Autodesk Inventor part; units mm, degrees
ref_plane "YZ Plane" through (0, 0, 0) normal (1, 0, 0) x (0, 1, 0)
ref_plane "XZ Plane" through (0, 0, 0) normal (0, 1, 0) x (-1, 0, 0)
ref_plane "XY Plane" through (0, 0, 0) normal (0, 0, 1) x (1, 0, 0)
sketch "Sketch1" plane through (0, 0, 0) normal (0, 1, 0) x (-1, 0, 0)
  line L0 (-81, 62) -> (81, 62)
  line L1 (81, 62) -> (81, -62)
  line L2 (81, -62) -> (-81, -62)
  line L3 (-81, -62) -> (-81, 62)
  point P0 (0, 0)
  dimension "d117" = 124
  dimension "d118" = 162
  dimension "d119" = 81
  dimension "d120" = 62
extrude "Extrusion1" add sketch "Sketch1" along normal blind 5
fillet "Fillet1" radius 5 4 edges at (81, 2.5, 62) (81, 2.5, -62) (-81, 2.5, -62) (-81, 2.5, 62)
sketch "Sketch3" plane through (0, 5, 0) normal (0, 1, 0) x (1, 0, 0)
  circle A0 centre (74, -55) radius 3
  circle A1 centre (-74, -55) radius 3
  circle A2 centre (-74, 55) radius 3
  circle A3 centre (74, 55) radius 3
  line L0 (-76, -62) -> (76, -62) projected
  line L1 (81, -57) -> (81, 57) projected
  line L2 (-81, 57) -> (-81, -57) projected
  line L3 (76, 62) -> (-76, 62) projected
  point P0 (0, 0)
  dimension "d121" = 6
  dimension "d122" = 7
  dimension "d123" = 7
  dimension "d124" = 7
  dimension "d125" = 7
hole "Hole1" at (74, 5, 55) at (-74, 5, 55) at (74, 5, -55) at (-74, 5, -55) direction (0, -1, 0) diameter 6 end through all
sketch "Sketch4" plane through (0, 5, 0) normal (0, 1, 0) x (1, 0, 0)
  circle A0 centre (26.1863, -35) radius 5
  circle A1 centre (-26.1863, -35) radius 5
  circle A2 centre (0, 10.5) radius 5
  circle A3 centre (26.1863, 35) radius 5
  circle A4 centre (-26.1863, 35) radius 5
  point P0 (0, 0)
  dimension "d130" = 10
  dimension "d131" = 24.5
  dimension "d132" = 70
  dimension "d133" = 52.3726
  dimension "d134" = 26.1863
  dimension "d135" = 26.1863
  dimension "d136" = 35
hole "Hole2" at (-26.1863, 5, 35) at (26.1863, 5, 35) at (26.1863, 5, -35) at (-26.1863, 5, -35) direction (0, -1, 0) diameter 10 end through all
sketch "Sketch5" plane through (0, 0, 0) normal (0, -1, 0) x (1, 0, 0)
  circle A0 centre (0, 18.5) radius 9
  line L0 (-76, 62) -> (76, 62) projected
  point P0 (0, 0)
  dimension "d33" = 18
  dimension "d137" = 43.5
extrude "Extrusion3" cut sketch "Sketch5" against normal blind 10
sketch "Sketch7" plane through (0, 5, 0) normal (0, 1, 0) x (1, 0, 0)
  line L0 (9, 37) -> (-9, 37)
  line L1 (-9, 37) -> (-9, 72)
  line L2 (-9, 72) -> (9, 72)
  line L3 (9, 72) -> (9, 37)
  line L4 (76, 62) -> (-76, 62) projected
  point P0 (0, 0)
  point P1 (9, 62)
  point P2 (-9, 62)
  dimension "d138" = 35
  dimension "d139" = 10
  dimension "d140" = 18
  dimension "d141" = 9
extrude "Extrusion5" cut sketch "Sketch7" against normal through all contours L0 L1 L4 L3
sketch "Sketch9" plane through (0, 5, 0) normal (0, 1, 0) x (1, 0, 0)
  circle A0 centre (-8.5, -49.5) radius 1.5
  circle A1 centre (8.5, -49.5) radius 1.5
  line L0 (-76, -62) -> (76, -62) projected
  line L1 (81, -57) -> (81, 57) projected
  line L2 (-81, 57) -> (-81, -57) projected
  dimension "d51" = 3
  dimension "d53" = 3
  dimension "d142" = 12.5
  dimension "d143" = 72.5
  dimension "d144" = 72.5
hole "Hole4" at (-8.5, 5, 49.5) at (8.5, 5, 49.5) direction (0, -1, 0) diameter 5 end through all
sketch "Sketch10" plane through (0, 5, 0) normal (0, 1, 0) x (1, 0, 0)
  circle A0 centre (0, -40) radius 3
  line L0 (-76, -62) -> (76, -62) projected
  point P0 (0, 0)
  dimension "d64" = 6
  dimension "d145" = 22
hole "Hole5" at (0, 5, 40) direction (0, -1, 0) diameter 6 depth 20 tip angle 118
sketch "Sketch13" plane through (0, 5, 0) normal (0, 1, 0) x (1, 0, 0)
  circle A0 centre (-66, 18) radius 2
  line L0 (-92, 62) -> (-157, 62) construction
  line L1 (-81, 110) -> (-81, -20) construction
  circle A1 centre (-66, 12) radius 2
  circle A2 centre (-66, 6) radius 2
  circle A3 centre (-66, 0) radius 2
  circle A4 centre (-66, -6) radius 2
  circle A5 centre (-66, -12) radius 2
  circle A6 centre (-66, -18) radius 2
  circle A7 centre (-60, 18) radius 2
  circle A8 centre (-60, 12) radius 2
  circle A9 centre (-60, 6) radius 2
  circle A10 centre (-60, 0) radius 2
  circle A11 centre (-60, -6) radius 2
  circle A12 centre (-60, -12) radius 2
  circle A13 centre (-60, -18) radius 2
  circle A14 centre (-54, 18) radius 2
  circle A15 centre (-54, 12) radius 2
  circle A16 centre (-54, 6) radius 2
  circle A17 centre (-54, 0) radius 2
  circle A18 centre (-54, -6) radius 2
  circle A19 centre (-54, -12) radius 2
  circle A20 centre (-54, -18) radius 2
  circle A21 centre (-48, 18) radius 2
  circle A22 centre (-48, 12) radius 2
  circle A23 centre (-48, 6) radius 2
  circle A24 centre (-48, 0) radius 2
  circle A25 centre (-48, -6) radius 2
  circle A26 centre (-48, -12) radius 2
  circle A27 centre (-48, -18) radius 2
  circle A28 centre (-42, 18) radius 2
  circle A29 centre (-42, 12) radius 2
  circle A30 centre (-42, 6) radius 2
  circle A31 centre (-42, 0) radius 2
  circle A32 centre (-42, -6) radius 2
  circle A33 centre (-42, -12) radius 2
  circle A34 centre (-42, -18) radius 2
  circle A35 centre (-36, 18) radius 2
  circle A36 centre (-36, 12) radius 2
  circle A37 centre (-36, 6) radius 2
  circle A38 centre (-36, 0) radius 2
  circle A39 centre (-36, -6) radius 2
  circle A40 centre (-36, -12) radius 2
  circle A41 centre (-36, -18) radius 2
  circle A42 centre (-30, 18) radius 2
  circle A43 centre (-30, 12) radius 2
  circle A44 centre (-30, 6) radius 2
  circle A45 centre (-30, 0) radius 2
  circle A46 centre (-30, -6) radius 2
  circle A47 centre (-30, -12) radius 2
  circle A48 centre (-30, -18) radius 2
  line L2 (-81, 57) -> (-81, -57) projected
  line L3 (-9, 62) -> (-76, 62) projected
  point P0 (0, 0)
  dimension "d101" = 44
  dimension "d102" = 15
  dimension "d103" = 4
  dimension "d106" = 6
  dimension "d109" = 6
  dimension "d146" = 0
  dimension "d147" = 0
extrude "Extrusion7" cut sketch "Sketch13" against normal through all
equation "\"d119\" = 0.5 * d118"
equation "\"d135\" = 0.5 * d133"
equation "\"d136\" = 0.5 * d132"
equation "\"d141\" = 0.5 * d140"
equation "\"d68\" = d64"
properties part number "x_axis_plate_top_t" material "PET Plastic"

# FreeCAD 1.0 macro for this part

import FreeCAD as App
import Part
import Sketcher
from FreeCAD import Vector


def edges_at(feature, points):
    """Names of the edges that pass closest to the given points."""
    edges = feature.Shape.Edges
    near = lambda p: min(range(len(edges)), key=lambda i: edges[i].distToShape(Part.Vertex(*p))[0])
    return sorted({f"Edge{near(p) + 1}" for p in points})


def add_polygon(sketch, points):
    """Adds a closed chain of lines whose ends are joined by coincident constraints."""
    first, n = sketch.GeometryCount, len(points)
    for a, b in zip(points, points[1:] + points[:1]):
        sketch.addGeometry(Part.LineSegment(App.Vector(*a, 0), App.Vector(*b, 0)), False)
    for i in range(n):
        sketch.addConstraint(Sketcher.Constraint("Coincident", first + i, 2, first + (i + 1) % n, 1))

doc = App.newDocument("Part")
body = doc.addObject("PartDesign::Body", "Body")

sketch1 = body.newObject("Sketcher::SketchObject", "Sketch")
sketch1.AttachmentSupport = (doc.getObject("XZ_Plane"), [""])
sketch1.MapMode = "FlatFace"
add_polygon(sketch1, [(-81, 62), (81, 62), (81, -62), (-81, -62)])
sketch1.addConstraint(Sketcher.Constraint("Horizontal", 0))
sketch1.addConstraint(Sketcher.Constraint("Vertical", 1))
sketch1.addConstraint(Sketcher.Constraint("Horizontal", 2))
sketch1.addConstraint(Sketcher.Constraint("Vertical", 3))
sketch1.addConstraint(Sketcher.Constraint("Symmetric", 0, 2, 2, 2, -1, 1))
sketch1.addConstraint(Sketcher.Constraint("DistanceX", 0, 1, 0, 2, 162.0))
sketch1.addConstraint(Sketcher.Constraint("DistanceY", 1, 2, 1, 1, 124.0))
pad1 = body.newObject("PartDesign::Pad", "Pad")
pad1.Profile = sketch1
pad1.Length = 5
pad1.Reversed = True
doc.recompute()

fillet = body.newObject("PartDesign::Fillet", "Fillet")
fillet.Base = (pad1, edges_at(pad1, [
    (81, 2.5, 62),
    (81, 2.5, -62),
    (-81, 2.5, -62),
    (-81, 2.5, 62),
]))
fillet.Radius = 5

sketch2 = body.newObject("Sketcher::SketchObject", "Sketch001")
sketch2.AttachmentSupport = (doc.getObject("XZ_Plane"), [""])
sketch2.MapMode = "FlatFace"
sketch2.AttachmentOffset = App.Placement(Vector(0, 0, -5), App.Rotation())
sketch2.addGeometry(Part.Circle(Vector(74, 55, 0), Vector(0, 0, 1), 3), False)
sketch2.addGeometry(Part.Circle(Vector(-74, 55, 0), Vector(0, 0, 1), 3), False)
sketch2.addGeometry(Part.Circle(Vector(74, -55, 0), Vector(0, 0, 1), 3), False)
sketch2.addGeometry(Part.Circle(Vector(-74, -55, 0), Vector(0, 0, 1), 3), False)
sketch2.addConstraint(Sketcher.Constraint("Equal", 0, 1))
sketch2.addConstraint(Sketcher.Constraint("Equal", 1, 2))
sketch2.addConstraint(Sketcher.Constraint("Equal", 2, 3))
sketch2.addConstraint(Sketcher.Constraint("Symmetric", 1, 3, 2, 3, -1, 1))
sketch2.addConstraint(Sketcher.Constraint("Symmetric", 0, 3, 3, 3, -1, 1))
sketch2.addConstraint(Sketcher.Constraint("Symmetric", 0, 3, 1, 3, -2))
sketch2.addConstraint(Sketcher.Constraint("Diameter", 0, 6.0))
sketch2.addConstraint(Sketcher.Constraint("DistanceX", -1, 1, 0, 3, 74.0))
sketch2.addConstraint(Sketcher.Constraint("DistanceY", -1, 1, 0, 3, 55.0))
doc.recompute()
hole = body.newObject("PartDesign::Hole", "Hole")
hole.Profile = sketch2
hole.ThreadType = "None"
hole.Diameter = 6
hole.DepthType = "ThroughAll"
hole.Reversed = True

sketch3 = body.newObject("Sketcher::SketchObject", "Sketch002")
sketch3.AttachmentSupport = (doc.getObject("XZ_Plane"), [""])
sketch3.MapMode = "FlatFace"
sketch3.AttachmentOffset = App.Placement(Vector(0, 0, -5), App.Rotation())
sketch3.addGeometry(Part.Circle(Vector(-26, 35, 0), Vector(0, 0, 1), 5), False)
sketch3.addGeometry(Part.Circle(Vector(26, 35, 0), Vector(0, 0, 1), 5), False)
sketch3.addGeometry(Part.Circle(Vector(26, -35, 0), Vector(0, 0, 1), 5), False)
sketch3.addGeometry(Part.Circle(Vector(-26, -35, 0), Vector(0, 0, 1), 5), False)
sketch3.addConstraint(Sketcher.Constraint("Equal", 0, 1))
sketch3.addConstraint(Sketcher.Constraint("Equal", 1, 2))
sketch3.addConstraint(Sketcher.Constraint("Equal", 2, 3))
sketch3.addConstraint(Sketcher.Constraint("Symmetric", 0, 3, 2, 3, -1, 1))
sketch3.addConstraint(Sketcher.Constraint("Symmetric", 1, 3, 3, 3, -1, 1))
sketch3.addConstraint(Sketcher.Constraint("Symmetric", 0, 3, 1, 3, -2))
sketch3.addConstraint(Sketcher.Constraint("Diameter", 0, 10.0))
sketch3.addConstraint(Sketcher.Constraint("DistanceY", -1, 1, 0, 3, 35.0))
sketch3.addConstraint(Sketcher.Constraint("DistanceX", 0, 3, -1, 1, 26.1863))
doc.recompute()
hole2 = body.newObject("PartDesign::Hole", "Hole001")
hole2.Profile = sketch3
hole2.ThreadType = "None"
hole2.Diameter = 10
hole2.DepthType = "ThroughAll"
hole2.Reversed = True

sketch4 = body.newObject("Sketcher::SketchObject", "Sketch003")
sketch4.AttachmentSupport = (doc.getObject("XZ_Plane"), [""])
sketch4.MapMode = "FlatFace"
sketch4.addGeometry(Part.Circle(Vector(0, 18, 0), Vector(0, 0, 1), 9), False)
sketch4.addConstraint(Sketcher.Constraint("PointOnObject", 0, 3, -2))
sketch4.addConstraint(Sketcher.Constraint("Diameter", 0, 18.0))
sketch4.addConstraint(Sketcher.Constraint("DistanceY", -1, 1, 0, 3, 18.5))
pocket1 = body.newObject("PartDesign::Pocket", "Pocket")
pocket1.Profile = sketch4
pocket1.Length = 10

sketch5 = body.newObject("Sketcher::SketchObject", "Sketch004")
sketch5.AttachmentSupport = (doc.getObject("XZ_Plane"), [""])
sketch5.MapMode = "FlatFace"
sketch5.AttachmentOffset = App.Placement(Vector(0, 0, -5), App.Rotation())
add_polygon(sketch5, [(-9, -37), (9, -37), (9, -62), (-9, -62)])
sketch5.addConstraint(Sketcher.Constraint("Horizontal", 0))
sketch5.addConstraint(Sketcher.Constraint("Vertical", 1))
sketch5.addConstraint(Sketcher.Constraint("Horizontal", 2))
sketch5.addConstraint(Sketcher.Constraint("Vertical", 3))
sketch5.addConstraint(Sketcher.Constraint("DistanceX", 0, 1, 0, 2, 18.0))
sketch5.addConstraint(Sketcher.Constraint("DistanceX", -1, 1, 0, 2, 9.0))
sketch5.addConstraint(Sketcher.Constraint("DistanceY", 1, 2, 1, 1, 25.0))
sketch5.addConstraint(Sketcher.Constraint("DistanceY", 0, 2, -1, 1, 37.0))
pocket2 = body.newObject("PartDesign::Pocket", "Pocket001")
pocket2.Profile = sketch5
pocket2.Type = "ThroughAll"
pocket2.Reversed = True

sketch6 = body.newObject("Sketcher::SketchObject", "Sketch005")
sketch6.AttachmentSupport = (doc.getObject("XZ_Plane"), [""])
sketch6.MapMode = "FlatFace"
sketch6.AttachmentOffset = App.Placement(Vector(0, 0, -5), App.Rotation())
sketch6.addGeometry(Part.Circle(Vector(-8.5, 49.5, 0), Vector(0, 0, 1), 2.5), False)
sketch6.addGeometry(Part.Circle(Vector(8.5, 49.5, 0), Vector(0, 0, 1), 2.5), False)
sketch6.addConstraint(Sketcher.Constraint("Equal", 0, 1))
sketch6.addConstraint(Sketcher.Constraint("Symmetric", 0, 3, 1, 3, -2))
sketch6.addConstraint(Sketcher.Constraint("Diameter", 0, 5.0))
sketch6.addConstraint(Sketcher.Constraint("DistanceX", 0, 3, 1, 3, 17.0))
sketch6.addConstraint(Sketcher.Constraint("DistanceY", -1, 1, 0, 3, 49.5))
doc.recompute()
hole3 = body.newObject("PartDesign::Hole", "Hole002")
hole3.Profile = sketch6
hole3.ThreadType = "None"
hole3.Diameter = 5
hole3.DepthType = "ThroughAll"
hole3.Reversed = True

sketch7 = body.newObject("Sketcher::SketchObject", "Sketch006")
sketch7.AttachmentSupport = (doc.getObject("XZ_Plane"), [""])
sketch7.MapMode = "FlatFace"
sketch7.AttachmentOffset = App.Placement(Vector(0, 0, -5), App.Rotation())
sketch7.addGeometry(Part.Circle(Vector(0, 40, 0), Vector(0, 0, 1), 3), False)
sketch7.addConstraint(Sketcher.Constraint("PointOnObject", 0, 3, -2))
sketch7.addConstraint(Sketcher.Constraint("Diameter", 0, 6.0))
sketch7.addConstraint(Sketcher.Constraint("DistanceY", -1, 1, 0, 3, 40.0))
doc.recompute()
hole4 = body.newObject("PartDesign::Hole", "Hole003")
hole4.Profile = sketch7
hole4.ThreadType = "None"
hole4.Diameter = 6
hole4.DepthType = "Dimension"
hole4.Depth = 20
hole4.DrillPoint = "Angled"
hole4.DrillPointAngle = 118
hole4.Reversed = True

sketch8 = body.newObject("Sketcher::SketchObject", "Sketch007")
sketch8.AttachmentSupport = (doc.getObject("XZ_Plane"), [""])
sketch8.MapMode = "FlatFace"
sketch8.AttachmentOffset = App.Placement(Vector(0, 0, -5), App.Rotation())
sketch8.addGeometry(Part.Circle(Vector(-66, -18, 0), Vector(0, 0, 1), 2), False)
sketch8.addGeometry(Part.Circle(Vector(-66, -12, 0), Vector(0, 0, 1), 2), False)
sketch8.addGeometry(Part.Circle(Vector(-66, -6, 0), Vector(0, 0, 1), 2), False)
sketch8.addGeometry(Part.Circle(Vector(-66, 0, 0), Vector(0, 0, 1), 2), False)
sketch8.addGeometry(Part.Circle(Vector(-66, 6, 0), Vector(0, 0, 1), 2), False)
sketch8.addGeometry(Part.Circle(Vector(-66, 12, 0), Vector(0, 0, 1), 2), False)
sketch8.addGeometry(Part.Circle(Vector(-66, 18, 0), Vector(0, 0, 1), 2), False)
sketch8.addGeometry(Part.Circle(Vector(-60, -18, 0), Vector(0, 0, 1), 2), False)
sketch8.addGeometry(Part.Circle(Vector(-60, -12, 0), Vector(0, 0, 1), 2), False)
sketch8.addGeometry(Part.Circle(Vector(-60, -6, 0), Vector(0, 0, 1), 2), False)
sketch8.addGeometry(Part.Circle(Vector(-60, 0, 0), Vector(0, 0, 1), 2), False)
sketch8.addGeometry(Part.Circle(Vector(-60, 6, 0), Vector(0, 0, 1), 2), False)
sketch8.addGeometry(Part.Circle(Vector(-60, 12, 0), Vector(0, 0, 1), 2), False)
sketch8.addGeometry(Part.Circle(Vector(-60, 18, 0), Vector(0, 0, 1), 2), False)
sketch8.addGeometry(Part.Circle(Vector(-54, -18, 0), Vector(0, 0, 1), 2), False)
sketch8.addGeometry(Part.Circle(Vector(-54, -12, 0), Vector(0, 0, 1), 2), False)
sketch8.addGeometry(Part.Circle(Vector(-54, -6, 0), Vector(0, 0, 1), 2), False)
sketch8.addGeometry(Part.Circle(Vector(-54, 0, 0), Vector(0, 0, 1), 2), False)
sketch8.addGeometry(Part.Circle(Vector(-54, 6, 0), Vector(0, 0, 1), 2), False)
sketch8.addGeometry(Part.Circle(Vector(-54, 12, 0), Vector(0, 0, 1), 2), False)
sketch8.addGeometry(Part.Circle(Vector(-54, 18, 0), Vector(0, 0, 1), 2), False)
sketch8.addGeometry(Part.Circle(Vector(-48, -18, 0), Vector(0, 0, 1), 2), False)
sketch8.addGeometry(Part.Circle(Vector(-48, -12, 0), Vector(0, 0, 1), 2), False)
sketch8.addGeometry(Part.Circle(Vector(-48, -6, 0), Vector(0, 0, 1), 2), False)
sketch8.addGeometry(Part.Circle(Vector(-48, 0, 0), Vector(0, 0, 1), 2), False)
sketch8.addGeometry(Part.Circle(Vector(-48, 6, 0), Vector(0, 0, 1), 2), False)
sketch8.addGeometry(Part.Circle(Vector(-48, 12, 0), Vector(0, 0, 1), 2), False)
sketch8.addGeometry(Part.Circle(Vector(-48, 18, 0), Vector(0, 0, 1), 2), False)
sketch8.addGeometry(Part.Circle(Vector(-42, -18, 0), Vector(0, 0, 1), 2), False)
sketch8.addGeometry(Part.Circle(Vector(-42, -12, 0), Vector(0, 0, 1), 2), False)
sketch8.addGeometry(Part.Circle(Vector(-42, -6, 0), Vector(0, 0, 1), 2), False)
sketch8.addGeometry(Part.Circle(Vector(-42, 0, 0), Vector(0, 0, 1), 2), False)
sketch8.addGeometry(Part.Circle(Vector(-42, 6, 0), Vector(0, 0, 1), 2), False)
sketch8.addGeometry(Part.Circle(Vector(-42, 12, 0), Vector(0, 0, 1), 2), False)
sketch8.addGeometry(Part.Circle(Vector(-42, 18, 0), Vector(0, 0, 1), 2), False)
sketch8.addGeometry(Part.Circle(Vector(-36, -18, 0), Vector(0, 0, 1), 2), False)
sketch8.addGeometry(Part.Circle(Vector(-36, -12, 0), Vector(0, 0, 1), 2), False)
sketch8.addGeometry(Part.Circle(Vector(-36, -6, 0), Vector(0, 0, 1), 2), False)
sketch8.addGeometry(Part.Circle(Vector(-36, 0, 0), Vector(0, 0, 1), 2), False)
sketch8.addGeometry(Part.Circle(Vector(-36, 6, 0), Vector(0, 0, 1), 2), False)
sketch8.addGeometry(Part.Circle(Vector(-36, 12, 0), Vector(0, 0, 1), 2), False)
sketch8.addGeometry(Part.Circle(Vector(-36, 18, 0), Vector(0, 0, 1), 2), False)
sketch8.addGeometry(Part.Circle(Vector(-30, -18, 0), Vector(0, 0, 1), 2), False)
sketch8.addGeometry(Part.Circle(Vector(-30, -12, 0), Vector(0, 0, 1), 2), False)
sketch8.addGeometry(Part.Circle(Vector(-30, -6, 0), Vector(0, 0, 1), 2), False)
sketch8.addGeometry(Part.Circle(Vector(-30, 0, 0), Vector(0, 0, 1), 2), False)
sketch8.addGeometry(Part.Circle(Vector(-30, 6, 0), Vector(0, 0, 1), 2), False)
sketch8.addGeometry(Part.Circle(Vector(-30, 12, 0), Vector(0, 0, 1), 2), False)
sketch8.addGeometry(Part.Circle(Vector(-30, 18, 0), Vector(0, 0, 1), 2), False)
sketch8.addConstraint(Sketcher.Constraint("Equal", 0, 1))
sketch8.addConstraint(Sketcher.Constraint("Equal", 1, 2))
sketch8.addConstraint(Sketcher.Constraint("Equal", 2, 3))
sketch8.addConstraint(Sketcher.Constraint("Equal", 3, 4))
sketch8.addConstraint(Sketcher.Constraint("Equal", 4, 5))
sketch8.addConstraint(Sketcher.Constraint("Equal", 5, 6))
sketch8.addConstraint(Sketcher.Constraint("Equal", 6, 7))
sketch8.addConstraint(Sketcher.Constraint("Equal", 7, 8))
sketch8.addConstraint(Sketcher.Constraint("Equal", 8, 9))
sketch8.addConstraint(Sketcher.Constraint("Equal", 9, 10))
sketch8.addConstraint(Sketcher.Constraint("Equal", 10, 11))
sketch8.addConstraint(Sketcher.Constraint("Equal", 11, 12))
sketch8.addConstraint(Sketcher.Constraint("Equal", 12, 13))
sketch8.addConstraint(Sketcher.Constraint("Equal", 13, 14))
sketch8.addConstraint(Sketcher.Constraint("Equal", 14, 15))
sketch8.addConstraint(Sketcher.Constraint("Equal", 15, 16))
sketch8.addConstraint(Sketcher.Constraint("Equal", 16, 17))
sketch8.addConstraint(Sketcher.Constraint("Equal", 17, 18))
sketch8.addConstraint(Sketcher.Constraint("Equal", 18, 19))
sketch8.addConstraint(Sketcher.Constraint("Equal", 19, 20))
sketch8.addConstraint(Sketcher.Constraint("Equal", 20, 21))
sketch8.addConstraint(Sketcher.Constraint("Equal", 21, 22))
sketch8.addConstraint(Sketcher.Constraint("Equal", 22, 23))
sketch8.addConstraint(Sketcher.Constraint("Equal", 23, 24))
sketch8.addConstraint(Sketcher.Constraint("Equal", 24, 25))
sketch8.addConstraint(Sketcher.Constraint("Equal", 25, 26))
sketch8.addConstraint(Sketcher.Constraint("Equal", 26, 27))
sketch8.addConstraint(Sketcher.Constraint("Equal", 27, 28))
sketch8.addConstraint(Sketcher.Constraint("Equal", 28, 29))
sketch8.addConstraint(Sketcher.Constraint("Equal", 29, 30))
sketch8.addConstraint(Sketcher.Constraint("Equal", 30, 31))
sketch8.addConstraint(Sketcher.Constraint("Equal", 31, 32))
sketch8.addConstraint(Sketcher.Constraint("Equal", 32, 33))
sketch8.addConstraint(Sketcher.Constraint("Equal", 33, 34))
sketch8.addConstraint(Sketcher.Constraint("Equal", 34, 35))
sketch8.addConstraint(Sketcher.Constraint("Equal", 35, 36))
sketch8.addConstraint(Sketcher.Constraint("Equal", 36, 37))
sketch8.addConstraint(Sketcher.Constraint("Equal", 37, 38))
sketch8.addConstraint(Sketcher.Constraint("Equal", 38, 39))
sketch8.addConstraint(Sketcher.Constraint("Equal", 39, 40))
sketch8.addConstraint(Sketcher.Constraint("Equal", 40, 41))
sketch8.addConstraint(Sketcher.Constraint("Equal", 41, 42))
sketch8.addConstraint(Sketcher.Constraint("Equal", 42, 43))
sketch8.addConstraint(Sketcher.Constraint("Equal", 43, 44))
sketch8.addConstraint(Sketcher.Constraint("Equal", 44, 45))
sketch8.addConstraint(Sketcher.Constraint("Equal", 45, 46))
sketch8.addConstraint(Sketcher.Constraint("Equal", 46, 47))
sketch8.addConstraint(Sketcher.Constraint("Equal", 47, 48))
sketch8.addConstraint(Sketcher.Constraint("Symmetric", 2, 3, 4, 3, -1))
sketch8.addConstraint(Sketcher.Constraint("Symmetric", 1, 3, 5, 3, -1))
sketch8.addConstraint(Sketcher.Constraint("Symmetric", 0, 3, 6, 3, -1))
sketch8.addConstraint(Sketcher.Constraint("Symmetric", 9, 3, 11, 3, -1))
sketch8.addConstraint(Sketcher.Constraint("Symmetric", 8, 3, 12, 3, -1))
sketch8.addConstraint(Sketcher.Constraint("Symmetric", 7, 3, 13, 3, -1))
sketch8.addConstraint(Sketcher.Constraint("Symmetric", 16, 3, 18, 3, -1))
sketch8.addConstraint(Sketcher.Constraint("Symmetric", 15, 3, 19, 3, -1))
sketch8.addConstraint(Sketcher.Constraint("Symmetric", 14, 3, 20, 3, -1))
sketch8.addConstraint(Sketcher.Constraint("Symmetric", 23, 3, 25, 3, -1))
sketch8.addConstraint(Sketcher.Constraint("Symmetric", 22, 3, 26, 3, -1))
sketch8.addConstraint(Sketcher.Constraint("Symmetric", 21, 3, 27, 3, -1))
sketch8.addConstraint(Sketcher.Constraint("Symmetric", 30, 3, 32, 3, -1))
sketch8.addConstraint(Sketcher.Constraint("Symmetric", 29, 3, 33, 3, -1))
sketch8.addConstraint(Sketcher.Constraint("Symmetric", 28, 3, 34, 3, -1))
sketch8.addConstraint(Sketcher.Constraint("Symmetric", 37, 3, 39, 3, -1))
sketch8.addConstraint(Sketcher.Constraint("Symmetric", 36, 3, 40, 3, -1))
sketch8.addConstraint(Sketcher.Constraint("Symmetric", 35, 3, 41, 3, -1))
sketch8.addConstraint(Sketcher.Constraint("Symmetric", 44, 3, 46, 3, -1))
sketch8.addConstraint(Sketcher.Constraint("Symmetric", 43, 3, 47, 3, -1))
sketch8.addConstraint(Sketcher.Constraint("Symmetric", 42, 3, 48, 3, -1))
sketch8.addConstraint(Sketcher.Constraint("PointOnObject", 3, 3, -1))
sketch8.addConstraint(Sketcher.Constraint("PointOnObject", 10, 3, -1))
sketch8.addConstraint(Sketcher.Constraint("PointOnObject", 17, 3, -1))
sketch8.addConstraint(Sketcher.Constraint("PointOnObject", 24, 3, -1))
sketch8.addConstraint(Sketcher.Constraint("PointOnObject", 31, 3, -1))
sketch8.addConstraint(Sketcher.Constraint("PointOnObject", 38, 3, -1))
sketch8.addConstraint(Sketcher.Constraint("PointOnObject", 45, 3, -1))
sketch8.addConstraint(Sketcher.Constraint("Horizontal", 0, 3, 7, 3))
sketch8.addConstraint(Sketcher.Constraint("Horizontal", 1, 3, 8, 3))
sketch8.addConstraint(Sketcher.Constraint("Horizontal", 2, 3, 9, 3))
sketch8.addConstraint(Sketcher.Constraint("Horizontal", 7, 3, 14, 3))
sketch8.addConstraint(Sketcher.Constraint("Horizontal", 8, 3, 15, 3))
sketch8.addConstraint(Sketcher.Constraint("Horizontal", 9, 3, 16, 3))
sketch8.addConstraint(Sketcher.Constraint("Horizontal", 14, 3, 21, 3))
sketch8.addConstraint(Sketcher.Constraint("Horizontal", 15, 3, 22, 3))
sketch8.addConstraint(Sketcher.Constraint("Horizontal", 16, 3, 23, 3))
sketch8.addConstraint(Sketcher.Constraint("Horizontal", 21, 3, 28, 3))
sketch8.addConstraint(Sketcher.Constraint("Horizontal", 22, 3, 29, 3))
sketch8.addConstraint(Sketcher.Constraint("Horizontal", 23, 3, 30, 3))
sketch8.addConstraint(Sketcher.Constraint("Horizontal", 28, 3, 35, 3))
sketch8.addConstraint(Sketcher.Constraint("Horizontal", 29, 3, 36, 3))
sketch8.addConstraint(Sketcher.Constraint("Horizontal", 30, 3, 37, 3))
sketch8.addConstraint(Sketcher.Constraint("Horizontal", 35, 3, 42, 3))
sketch8.addConstraint(Sketcher.Constraint("Horizontal", 36, 3, 43, 3))
sketch8.addConstraint(Sketcher.Constraint("Horizontal", 37, 3, 44, 3))
sketch8.addConstraint(Sketcher.Constraint("Vertical", 0, 3, 1, 3))
sketch8.addConstraint(Sketcher.Constraint("Vertical", 1, 3, 2, 3))
sketch8.addConstraint(Sketcher.Constraint("Vertical", 2, 3, 3, 3))
sketch8.addConstraint(Sketcher.Constraint("Vertical", 7, 3, 8, 3))
sketch8.addConstraint(Sketcher.Constraint("Vertical", 8, 3, 9, 3))
sketch8.addConstraint(Sketcher.Constraint("Vertical", 9, 3, 10, 3))
sketch8.addConstraint(Sketcher.Constraint("Vertical", 14, 3, 15, 3))
sketch8.addConstraint(Sketcher.Constraint("Vertical", 15, 3, 16, 3))
sketch8.addConstraint(Sketcher.Constraint("Vertical", 16, 3, 17, 3))
sketch8.addConstraint(Sketcher.Constraint("Vertical", 21, 3, 22, 3))
sketch8.addConstraint(Sketcher.Constraint("Vertical", 22, 3, 23, 3))
sketch8.addConstraint(Sketcher.Constraint("Vertical", 23, 3, 24, 3))
sketch8.addConstraint(Sketcher.Constraint("Vertical", 28, 3, 29, 3))
sketch8.addConstraint(Sketcher.Constraint("Vertical", 29, 3, 30, 3))
sketch8.addConstraint(Sketcher.Constraint("Vertical", 30, 3, 31, 3))
sketch8.addConstraint(Sketcher.Constraint("Vertical", 35, 3, 36, 3))
sketch8.addConstraint(Sketcher.Constraint("Vertical", 36, 3, 37, 3))
sketch8.addConstraint(Sketcher.Constraint("Vertical", 37, 3, 38, 3))
sketch8.addConstraint(Sketcher.Constraint("Vertical", 42, 3, 43, 3))
sketch8.addConstraint(Sketcher.Constraint("Vertical", 43, 3, 44, 3))
sketch8.addConstraint(Sketcher.Constraint("Vertical", 44, 3, 45, 3))
sketch8.addConstraint(Sketcher.Constraint("Diameter", 0, 4.0))
sketch8.addConstraint(Sketcher.Constraint("DistanceY", 2, 3, -1, 1, 6.0))
sketch8.addConstraint(Sketcher.Constraint("DistanceY", 0, 3, 1, 3, 6.0))
sketch8.addConstraint(Sketcher.Constraint("DistanceY", 1, 3, 2, 3, 6.0))
sketch8.addConstraint(Sketcher.Constraint("DistanceX", 0, 3, 7, 3, 6.0))
sketch8.addConstraint(Sketcher.Constraint("DistanceX", 7, 3, 14, 3, 6.0))
sketch8.addConstraint(Sketcher.Constraint("DistanceX", 14, 3, 21, 3, 6.0))
sketch8.addConstraint(Sketcher.Constraint("DistanceX", 21, 3, 28, 3, 6.0))
sketch8.addConstraint(Sketcher.Constraint("DistanceX", 28, 3, 35, 3, 6.0))
sketch8.addConstraint(Sketcher.Constraint("DistanceX", 35, 3, 42, 3, 6.0))
sketch8.addConstraint(Sketcher.Constraint("DistanceX", 0, 3, -1, 1, 66.0))
pocket3 = body.newObject("PartDesign::Pocket", "Pocket002")
pocket3.Profile = sketch8
pocket3.Type = "ThroughAll"
pocket3.Reversed = True

doc.recompute()
